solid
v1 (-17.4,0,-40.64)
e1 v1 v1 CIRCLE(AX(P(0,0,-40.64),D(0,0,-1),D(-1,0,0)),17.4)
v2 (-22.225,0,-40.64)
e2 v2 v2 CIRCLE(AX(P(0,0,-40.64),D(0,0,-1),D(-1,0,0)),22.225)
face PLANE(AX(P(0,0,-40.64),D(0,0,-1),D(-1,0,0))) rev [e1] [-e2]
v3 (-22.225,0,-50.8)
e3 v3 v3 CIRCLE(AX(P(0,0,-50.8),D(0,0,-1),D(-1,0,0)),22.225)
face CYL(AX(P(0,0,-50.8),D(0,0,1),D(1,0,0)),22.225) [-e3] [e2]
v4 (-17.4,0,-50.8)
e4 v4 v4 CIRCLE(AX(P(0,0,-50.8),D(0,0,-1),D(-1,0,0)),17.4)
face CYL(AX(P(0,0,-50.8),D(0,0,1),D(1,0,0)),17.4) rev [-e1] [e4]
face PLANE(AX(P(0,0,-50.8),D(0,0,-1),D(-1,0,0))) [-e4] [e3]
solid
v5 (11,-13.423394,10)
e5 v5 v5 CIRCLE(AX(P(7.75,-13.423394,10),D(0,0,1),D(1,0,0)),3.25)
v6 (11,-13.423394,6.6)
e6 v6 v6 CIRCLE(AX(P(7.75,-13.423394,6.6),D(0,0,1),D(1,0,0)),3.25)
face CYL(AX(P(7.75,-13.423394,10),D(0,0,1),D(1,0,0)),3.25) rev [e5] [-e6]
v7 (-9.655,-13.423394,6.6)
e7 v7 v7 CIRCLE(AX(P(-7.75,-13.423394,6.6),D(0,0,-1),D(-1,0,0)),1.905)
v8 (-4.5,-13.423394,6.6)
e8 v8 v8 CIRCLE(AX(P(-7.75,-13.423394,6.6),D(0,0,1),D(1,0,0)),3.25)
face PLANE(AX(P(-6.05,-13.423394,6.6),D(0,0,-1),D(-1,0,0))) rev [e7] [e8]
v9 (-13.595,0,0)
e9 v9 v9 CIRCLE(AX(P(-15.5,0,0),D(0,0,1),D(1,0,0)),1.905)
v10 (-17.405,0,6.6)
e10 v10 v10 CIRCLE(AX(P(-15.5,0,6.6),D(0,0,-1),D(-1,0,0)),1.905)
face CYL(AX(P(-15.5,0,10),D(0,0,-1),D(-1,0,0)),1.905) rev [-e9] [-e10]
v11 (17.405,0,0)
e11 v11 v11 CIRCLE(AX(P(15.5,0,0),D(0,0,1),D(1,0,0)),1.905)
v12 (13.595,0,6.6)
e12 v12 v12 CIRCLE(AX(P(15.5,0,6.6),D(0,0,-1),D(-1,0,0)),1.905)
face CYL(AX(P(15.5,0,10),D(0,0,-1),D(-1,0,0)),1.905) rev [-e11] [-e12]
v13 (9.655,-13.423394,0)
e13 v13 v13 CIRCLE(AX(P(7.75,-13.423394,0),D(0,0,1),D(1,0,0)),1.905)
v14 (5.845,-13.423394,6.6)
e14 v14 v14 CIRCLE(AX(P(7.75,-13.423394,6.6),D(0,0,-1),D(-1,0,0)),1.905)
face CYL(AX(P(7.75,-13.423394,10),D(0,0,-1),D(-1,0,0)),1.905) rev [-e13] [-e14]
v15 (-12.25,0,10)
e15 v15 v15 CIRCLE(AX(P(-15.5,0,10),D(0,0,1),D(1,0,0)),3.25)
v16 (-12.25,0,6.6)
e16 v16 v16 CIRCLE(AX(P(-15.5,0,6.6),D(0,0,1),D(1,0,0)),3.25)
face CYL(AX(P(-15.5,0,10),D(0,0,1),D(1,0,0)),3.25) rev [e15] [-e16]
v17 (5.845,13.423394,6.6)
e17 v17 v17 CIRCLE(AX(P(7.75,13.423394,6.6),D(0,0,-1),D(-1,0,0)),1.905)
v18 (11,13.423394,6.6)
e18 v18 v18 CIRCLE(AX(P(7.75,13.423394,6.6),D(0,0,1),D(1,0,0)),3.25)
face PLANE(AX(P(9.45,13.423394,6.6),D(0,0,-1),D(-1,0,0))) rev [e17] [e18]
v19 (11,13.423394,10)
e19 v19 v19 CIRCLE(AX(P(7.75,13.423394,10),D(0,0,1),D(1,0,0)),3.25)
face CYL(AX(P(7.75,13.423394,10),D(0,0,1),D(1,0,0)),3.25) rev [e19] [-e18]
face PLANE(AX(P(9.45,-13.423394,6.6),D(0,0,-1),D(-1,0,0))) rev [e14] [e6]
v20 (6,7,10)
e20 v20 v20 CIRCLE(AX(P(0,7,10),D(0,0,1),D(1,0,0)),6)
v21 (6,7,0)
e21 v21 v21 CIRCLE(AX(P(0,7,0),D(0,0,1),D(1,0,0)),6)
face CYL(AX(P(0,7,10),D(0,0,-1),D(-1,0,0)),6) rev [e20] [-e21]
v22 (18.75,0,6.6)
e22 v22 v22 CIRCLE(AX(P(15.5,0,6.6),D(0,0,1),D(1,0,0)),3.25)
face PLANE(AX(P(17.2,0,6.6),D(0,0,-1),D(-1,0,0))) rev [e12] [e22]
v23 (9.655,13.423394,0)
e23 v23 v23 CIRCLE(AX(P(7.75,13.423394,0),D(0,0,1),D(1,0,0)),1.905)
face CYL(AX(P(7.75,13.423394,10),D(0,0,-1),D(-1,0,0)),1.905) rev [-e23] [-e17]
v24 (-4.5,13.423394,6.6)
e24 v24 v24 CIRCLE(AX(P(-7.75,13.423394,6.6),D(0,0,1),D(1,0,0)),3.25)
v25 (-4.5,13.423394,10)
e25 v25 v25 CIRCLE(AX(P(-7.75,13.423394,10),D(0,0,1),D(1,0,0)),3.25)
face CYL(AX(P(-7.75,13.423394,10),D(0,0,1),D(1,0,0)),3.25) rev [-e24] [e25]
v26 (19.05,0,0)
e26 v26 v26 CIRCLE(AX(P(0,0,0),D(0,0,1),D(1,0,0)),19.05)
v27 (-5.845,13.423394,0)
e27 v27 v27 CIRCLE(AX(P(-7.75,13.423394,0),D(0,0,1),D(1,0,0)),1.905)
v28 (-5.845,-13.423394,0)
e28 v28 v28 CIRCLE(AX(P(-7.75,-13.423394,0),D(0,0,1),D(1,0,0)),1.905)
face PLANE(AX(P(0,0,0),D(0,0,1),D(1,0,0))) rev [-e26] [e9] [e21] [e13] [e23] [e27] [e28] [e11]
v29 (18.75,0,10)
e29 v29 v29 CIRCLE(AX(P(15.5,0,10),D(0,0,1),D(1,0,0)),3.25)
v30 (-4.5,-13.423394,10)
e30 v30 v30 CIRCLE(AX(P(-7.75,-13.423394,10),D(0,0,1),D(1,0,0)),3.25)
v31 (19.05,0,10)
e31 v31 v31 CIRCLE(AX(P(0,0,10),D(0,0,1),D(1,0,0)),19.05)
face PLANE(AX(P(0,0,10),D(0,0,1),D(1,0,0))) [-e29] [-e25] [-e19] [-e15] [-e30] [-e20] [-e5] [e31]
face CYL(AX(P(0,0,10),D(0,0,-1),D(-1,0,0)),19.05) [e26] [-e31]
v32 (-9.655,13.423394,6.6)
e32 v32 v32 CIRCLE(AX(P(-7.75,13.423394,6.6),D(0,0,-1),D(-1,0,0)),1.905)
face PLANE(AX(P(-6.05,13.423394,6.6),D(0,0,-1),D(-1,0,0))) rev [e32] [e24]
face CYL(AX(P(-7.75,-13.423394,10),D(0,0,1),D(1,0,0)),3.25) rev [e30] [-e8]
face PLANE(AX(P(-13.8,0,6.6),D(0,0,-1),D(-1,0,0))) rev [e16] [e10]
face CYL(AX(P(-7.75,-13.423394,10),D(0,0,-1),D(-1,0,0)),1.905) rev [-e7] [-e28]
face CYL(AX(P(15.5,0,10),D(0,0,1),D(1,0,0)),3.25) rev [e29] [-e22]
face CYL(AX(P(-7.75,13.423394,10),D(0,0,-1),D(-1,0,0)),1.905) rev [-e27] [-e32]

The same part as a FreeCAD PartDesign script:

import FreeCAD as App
import Part
import Sketcher

doc = App.newDocument("Part")
body = doc.addObject("PartDesign::Body", "Body")

# Sketch on XY plane
sketch1 = doc.addObject("Sketcher::SketchObject", "Sketch")
body.addObject(sketch1)
sketch1.AttachmentSupport = (doc.XY_Plane, [""])
sketch1.MapMode = "FlatFace"
sketch1.addGeometry(Part.Circle(App.Vector(0, 0, 0), App.Vector(0, 0, 1), 19.1), False)
sketch1.addGeometry(Part.Circle(App.Vector(-7.8, -13.4, 0), App.Vector(0, 0, 1), 1.9), False)
sketch1.addGeometry(Part.Circle(App.Vector(-15.5, 0, 0), App.Vector(0, 0, 1), 1.9), False)
sketch1.addGeometry(Part.Circle(App.Vector(7.8, -13.4, 0), App.Vector(0, 0, 1), 1.9), False)
sketch1.addGeometry(Part.Circle(App.Vector(15.5, 0, 0), App.Vector(0, 0, 1), 1.9), False)
sketch1.addGeometry(Part.Circle(App.Vector(-7.8, 13.4, 0), App.Vector(0, 0, 1), 1.9), False)
sketch1.addGeometry(Part.Circle(App.Vector(0, 7, 0), App.Vector(0, 0, 1), 6), False)
sketch1.addGeometry(Part.Circle(App.Vector(7.8, 13.4, 0), App.Vector(0, 0, 1), 1.9), False)
sketch1.addConstraint(Sketcher.Constraint("Coincident", 0, 3, -1, 1))
sketch1.addConstraint(Sketcher.Constraint("Equal", 1, 2))
sketch1.addConstraint(Sketcher.Constraint("Equal", 2, 3))
sketch1.addConstraint(Sketcher.Constraint("Equal", 3, 4))
sketch1.addConstraint(Sketcher.Constraint("Equal", 4, 5))
sketch1.addConstraint(Sketcher.Constraint("Equal", 5, 7))
sketch1.addConstraint(Sketcher.Constraint("Symmetric", 2, 3, 4, 3, -1, 1))
sketch1.addConstraint(Sketcher.Constraint("Symmetric", 3, 3, 5, 3, -1, 1))
sketch1.addConstraint(Sketcher.Constraint("Symmetric", 1, 3, 7, 3, -1, 1))
sketch1.addConstraint(Sketcher.Constraint("Symmetric", 1, 3, 3, 3, -2))
sketch1.addConstraint(Sketcher.Constraint("PointOnObject", 2, 3, -1))
sketch1.addConstraint(Sketcher.Constraint("PointOnObject", 6, 3, -2))
sketch1.addConstraint(Sketcher.Constraint("Diameter", 6, 12.0))
sketch1.addConstraint(Sketcher.Constraint("Diameter", 0, 38.1))
sketch1.addConstraint(Sketcher.Constraint("Diameter", 1, 3.81))
sketch1.addConstraint(Sketcher.Constraint("DistanceY", -1, 1, 6, 3, 7.0))
sketch1.addConstraint(Sketcher.Constraint("DistanceX", 2, 3, 4, 3, 31.0))
sketch1.addConstraint(Sketcher.Constraint("DistanceX", 1, 3, 3, 3, 15.5))
sketch1.addConstraint(Sketcher.Constraint("DistanceY", 1, 3, -1, 1, 13.423394))
pad1 = doc.addObject("PartDesign::Pad", "Pad")
body.addObject(pad1)
pad1.Profile = sketch1
pad1.Length = 10

# Sketch on XY plane
sketch2 = doc.addObject("Sketcher::SketchObject", "Sketch001")
body.addObject(sketch2)
sketch2.AttachmentSupport = (doc.XY_Plane, [""])
sketch2.MapMode = "FlatFace"
sketch2.AttachmentOffset = App.Placement(App.Vector(0, 0, 10), App.Rotation())
sketch2.addGeometry(Part.Circle(App.Vector(7.8, -13.4, 0), App.Vector(0, 0, 1), 1.7), False)
sketch2.addGeometry(Part.Circle(App.Vector(-7.8, -13.4, 0), App.Vector(0, 0, 1), 1.7), False)
sketch2.addGeometry(Part.Circle(App.Vector(-15.5, 0, 0), App.Vector(0, 0, 1), 1.7), False)
sketch2.addGeometry(Part.Circle(App.Vector(-7.8, 13.4, 0), App.Vector(0, 0, 1), 1.7), False)
sketch2.addGeometry(Part.Circle(App.Vector(7.8, 13.4, 0), App.Vector(0, 0, 1), 1.7), False)
sketch2.addGeometry(Part.Circle(App.Vector(15.5, 0, 0), App.Vector(0, 0, 1), 1.7), False)
sketch2.addConstraint(Sketcher.Constraint("Equal", 0, 1))
sketch2.addConstraint(Sketcher.Constraint("Equal", 1, 2))
sketch2.addConstraint(Sketcher.Constraint("Equal", 2, 3))
sketch2.addConstraint(Sketcher.Constraint("Equal", 3, 4))
sketch2.addConstraint(Sketcher.Constraint("Equal", 4, 5))
sketch2.addConstraint(Sketcher.Constraint("Symmetric", 0, 3, 3, 3, -1, 1))
sketch2.addConstraint(Sketcher.Constraint("Symmetric", 1, 3, 4, 3, -1, 1))
sketch2.addConstraint(Sketcher.Constraint("Symmetric", 2, 3, 5, 3, -1, 1))
sketch2.addConstraint(Sketcher.Constraint("Symmetric", 0, 3, 1, 3, -2))
sketch2.addConstraint(Sketcher.Constraint("PointOnObject", 2, 3, -1))
sketch2.addConstraint(Sketcher.Constraint("Diameter", 0, 3.4))
sketch2.addConstraint(Sketcher.Constraint("DistanceX", 2, 3, 5, 3, 31.0))
sketch2.addConstraint(Sketcher.Constraint("DistanceX", 1, 3, 0, 3, 15.5))
sketch2.addConstraint(Sketcher.Constraint("DistanceY", 0, 3, -1, 1, 13.423394))
doc.recompute()
hole = doc.addObject("PartDesign::Hole", "Hole")
body.addObject(hole)
hole.Profile = sketch2
hole.ThreadType = "None"
hole.Diameter = 3.4
hole.DepthType = "ThroughAll"
hole.HoleCutType = "Counterbore"
hole.HoleCutDiameter = 6.5
hole.HoleCutDepth = 3.4
body2 = doc.addObject("PartDesign::Body", "Body001")

# Sketch on XY plane
sketch3 = doc.addObject("Sketcher::SketchObject", "Sketch002")
body2.addObject(sketch3)
sketch3.AttachmentSupport = (doc.getObject("XY_Plane001"), [""])
sketch3.MapMode = "FlatFace"
sketch3.AttachmentOffset = App.Placement(App.Vector(0, 0, -40.64), App.Rotation())
sketch3.addGeometry(Part.Circle(App.Vector(0, 0, 0), App.Vector(0, 0, 1), 22), False)
sketch3.addGeometry(Part.Circle(App.Vector(0, 0, 0), App.Vector(0, 0, 1), 17), False)
sketch3.addConstraint(Sketcher.Constraint("Coincident", 0, 3, -1, 1))
sketch3.addConstraint(Sketcher.Constraint("Coincident", 1, 3, -1, 1))
sketch3.addConstraint(Sketcher.Constraint("Diameter", 1, 34.8))
sketch3.addConstraint(Sketcher.Constraint("Diameter", 0, 44.45))
pad2 = doc.addObject("PartDesign::Pad", "Pad001")
body2.addObject(pad2)
pad2.Profile = sketch3
pad2.Length = 10.16
pad2.Reversed = True

doc.recompute()
